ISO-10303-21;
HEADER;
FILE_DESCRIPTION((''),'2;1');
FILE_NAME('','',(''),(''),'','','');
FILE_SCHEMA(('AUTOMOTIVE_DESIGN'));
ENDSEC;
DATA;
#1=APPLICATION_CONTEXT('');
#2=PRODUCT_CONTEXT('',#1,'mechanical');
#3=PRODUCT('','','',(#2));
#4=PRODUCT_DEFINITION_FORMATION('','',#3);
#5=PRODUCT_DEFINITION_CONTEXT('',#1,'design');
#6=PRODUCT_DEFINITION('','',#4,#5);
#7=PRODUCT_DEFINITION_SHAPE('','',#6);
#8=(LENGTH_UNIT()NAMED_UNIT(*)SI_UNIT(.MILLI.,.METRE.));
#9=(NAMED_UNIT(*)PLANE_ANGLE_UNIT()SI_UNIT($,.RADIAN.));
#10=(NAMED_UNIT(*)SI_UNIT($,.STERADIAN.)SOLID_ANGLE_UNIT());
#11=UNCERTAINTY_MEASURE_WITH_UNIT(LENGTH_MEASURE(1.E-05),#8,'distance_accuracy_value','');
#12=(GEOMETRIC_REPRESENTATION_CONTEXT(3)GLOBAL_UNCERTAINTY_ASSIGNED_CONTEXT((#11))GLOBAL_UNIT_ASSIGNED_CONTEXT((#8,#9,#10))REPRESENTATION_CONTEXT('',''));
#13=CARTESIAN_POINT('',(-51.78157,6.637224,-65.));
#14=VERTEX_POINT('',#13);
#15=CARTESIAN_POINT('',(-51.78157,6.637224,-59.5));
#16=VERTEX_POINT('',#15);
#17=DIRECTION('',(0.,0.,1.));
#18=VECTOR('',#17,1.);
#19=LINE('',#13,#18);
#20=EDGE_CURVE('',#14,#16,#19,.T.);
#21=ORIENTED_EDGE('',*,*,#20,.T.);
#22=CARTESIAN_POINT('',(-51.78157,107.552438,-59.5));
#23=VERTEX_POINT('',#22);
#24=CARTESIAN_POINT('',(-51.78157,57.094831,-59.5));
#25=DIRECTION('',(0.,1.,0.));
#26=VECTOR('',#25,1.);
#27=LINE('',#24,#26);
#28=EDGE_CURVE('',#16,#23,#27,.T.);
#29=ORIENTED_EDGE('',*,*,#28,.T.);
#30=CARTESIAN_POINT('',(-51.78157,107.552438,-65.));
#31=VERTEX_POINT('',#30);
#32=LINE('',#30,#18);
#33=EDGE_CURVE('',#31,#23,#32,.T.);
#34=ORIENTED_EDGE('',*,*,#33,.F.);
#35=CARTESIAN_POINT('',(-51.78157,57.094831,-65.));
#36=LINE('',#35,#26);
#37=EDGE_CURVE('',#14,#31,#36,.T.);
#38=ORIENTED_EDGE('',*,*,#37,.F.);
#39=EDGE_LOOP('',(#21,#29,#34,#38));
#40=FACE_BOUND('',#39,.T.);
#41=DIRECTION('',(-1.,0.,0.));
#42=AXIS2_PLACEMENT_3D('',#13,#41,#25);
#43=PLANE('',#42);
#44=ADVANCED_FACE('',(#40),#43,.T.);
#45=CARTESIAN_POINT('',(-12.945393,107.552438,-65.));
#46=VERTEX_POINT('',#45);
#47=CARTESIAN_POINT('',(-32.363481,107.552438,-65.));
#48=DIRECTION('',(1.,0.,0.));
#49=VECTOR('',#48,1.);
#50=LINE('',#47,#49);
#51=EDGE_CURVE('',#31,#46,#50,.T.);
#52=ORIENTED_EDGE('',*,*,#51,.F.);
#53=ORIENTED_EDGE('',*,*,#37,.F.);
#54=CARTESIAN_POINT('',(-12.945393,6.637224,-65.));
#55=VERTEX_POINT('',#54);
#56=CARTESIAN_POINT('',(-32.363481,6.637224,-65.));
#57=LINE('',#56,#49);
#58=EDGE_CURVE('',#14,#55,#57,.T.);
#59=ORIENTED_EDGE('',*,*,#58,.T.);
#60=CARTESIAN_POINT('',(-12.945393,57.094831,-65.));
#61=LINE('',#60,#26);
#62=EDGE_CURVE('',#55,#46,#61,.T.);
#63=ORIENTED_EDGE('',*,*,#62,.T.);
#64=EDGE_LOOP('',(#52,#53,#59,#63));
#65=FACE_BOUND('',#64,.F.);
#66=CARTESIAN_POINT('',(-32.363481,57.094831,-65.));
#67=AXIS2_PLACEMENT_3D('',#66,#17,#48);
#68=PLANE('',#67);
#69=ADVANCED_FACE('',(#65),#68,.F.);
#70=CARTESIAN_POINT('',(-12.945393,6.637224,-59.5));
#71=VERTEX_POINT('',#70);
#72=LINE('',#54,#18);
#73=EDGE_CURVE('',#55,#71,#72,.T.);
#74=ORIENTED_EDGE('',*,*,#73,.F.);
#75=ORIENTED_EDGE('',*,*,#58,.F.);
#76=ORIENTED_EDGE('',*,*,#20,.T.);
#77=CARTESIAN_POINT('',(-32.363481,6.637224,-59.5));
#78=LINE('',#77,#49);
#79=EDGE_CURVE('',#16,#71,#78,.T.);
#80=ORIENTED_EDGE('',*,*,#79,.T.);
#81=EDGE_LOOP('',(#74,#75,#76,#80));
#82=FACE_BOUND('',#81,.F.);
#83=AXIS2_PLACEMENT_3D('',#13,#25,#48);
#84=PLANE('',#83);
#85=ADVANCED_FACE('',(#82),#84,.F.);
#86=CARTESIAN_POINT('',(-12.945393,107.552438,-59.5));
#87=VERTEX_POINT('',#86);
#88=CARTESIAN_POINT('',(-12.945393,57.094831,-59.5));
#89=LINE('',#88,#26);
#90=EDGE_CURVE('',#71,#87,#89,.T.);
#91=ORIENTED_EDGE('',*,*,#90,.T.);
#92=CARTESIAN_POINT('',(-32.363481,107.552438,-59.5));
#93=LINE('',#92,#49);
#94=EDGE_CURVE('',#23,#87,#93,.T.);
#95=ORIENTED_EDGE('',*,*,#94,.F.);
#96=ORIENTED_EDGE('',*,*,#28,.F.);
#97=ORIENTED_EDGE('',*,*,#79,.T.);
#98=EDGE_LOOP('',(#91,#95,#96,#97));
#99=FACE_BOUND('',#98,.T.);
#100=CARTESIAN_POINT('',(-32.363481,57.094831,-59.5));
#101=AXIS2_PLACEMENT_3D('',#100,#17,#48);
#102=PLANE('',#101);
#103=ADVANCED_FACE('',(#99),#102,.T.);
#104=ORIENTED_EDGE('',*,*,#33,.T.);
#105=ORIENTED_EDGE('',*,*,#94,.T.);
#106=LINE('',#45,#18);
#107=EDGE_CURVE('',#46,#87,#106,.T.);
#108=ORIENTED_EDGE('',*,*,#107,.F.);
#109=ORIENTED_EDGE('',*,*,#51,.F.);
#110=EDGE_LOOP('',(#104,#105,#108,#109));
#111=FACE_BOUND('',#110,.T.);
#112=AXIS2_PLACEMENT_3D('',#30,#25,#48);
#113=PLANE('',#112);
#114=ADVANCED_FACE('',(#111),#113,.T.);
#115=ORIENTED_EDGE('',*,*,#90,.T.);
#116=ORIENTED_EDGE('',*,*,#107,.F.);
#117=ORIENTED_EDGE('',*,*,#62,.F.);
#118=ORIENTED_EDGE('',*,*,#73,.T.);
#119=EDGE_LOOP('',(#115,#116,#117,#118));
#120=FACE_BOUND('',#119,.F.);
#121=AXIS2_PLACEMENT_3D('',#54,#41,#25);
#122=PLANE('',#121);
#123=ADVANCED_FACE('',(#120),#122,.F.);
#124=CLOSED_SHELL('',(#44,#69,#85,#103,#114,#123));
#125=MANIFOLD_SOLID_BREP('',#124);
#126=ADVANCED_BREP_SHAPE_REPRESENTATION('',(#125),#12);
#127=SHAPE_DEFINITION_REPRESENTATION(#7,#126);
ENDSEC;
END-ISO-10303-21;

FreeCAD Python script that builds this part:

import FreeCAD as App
import Part
import Sketcher
from FreeCAD import Vector


def add_polygon(sketch, points):
    """Adds a closed chain of lines whose ends are joined by coincident constraints."""
    first, n = sketch.GeometryCount, len(points)
    for a, b in zip(points, points[1:] + points[:1]):
        sketch.addGeometry(Part.LineSegment(App.Vector(*a, 0), App.Vector(*b, 0)), False)
    for i in range(n):
        sketch.addConstraint(Sketcher.Constraint("Coincident", first + i, 2, first + (i + 1) % n, 1))

doc = App.newDocument("Part")
params = doc.addObject("Spreadsheet::Sheet", "Params")
for row, (alias, value) in enumerate([
    ("pad1_length", "5.5 mm"),
], start=1):
    params.set(f"A{row}", alias)
    params.set(f"B{row}", "=" + value)
    params.setAlias(f"B{row}", alias)

body = doc.addObject("PartDesign::Body", "Body")

sketch1 = body.newObject("Sketcher::SketchObject", "Sketch")
sketch1.AttachmentSupport = (doc.getObject("XY_Plane"), [""])
sketch1.MapMode = "FlatFace"
sketch1.AttachmentOffset = App.Placement(Vector(0, 0, -65), App.Rotation())
add_polygon(sketch1, [(-52, 108), (-52, 7), (-13, 7), (-13, 108)])
sketch1.addConstraint([
    Sketcher.Constraint("Vertical", 0),
    Sketcher.Constraint("Horizontal", 1),
    Sketcher.Constraint("Vertical", 2),
    Sketcher.Constraint("Horizontal", 3),
    Sketcher.Constraint("DistanceX", 1, 1, 1, 2, 38.836177),
    Sketcher.Constraint("DistanceY", 0, 2, 0, 1, 100.915215),
    Sketcher.Constraint("DistanceX", 0, 2, -1, 1, 51.78157),
    Sketcher.Constraint("DistanceY", -1, 1, 2, 2, 107.552438),
])
pad1 = body.newObject("PartDesign::Pad", "Pad")
pad1.Profile = sketch1
pad1.setExpression("Length", "Params.pad1_length")

doc.recompute()
